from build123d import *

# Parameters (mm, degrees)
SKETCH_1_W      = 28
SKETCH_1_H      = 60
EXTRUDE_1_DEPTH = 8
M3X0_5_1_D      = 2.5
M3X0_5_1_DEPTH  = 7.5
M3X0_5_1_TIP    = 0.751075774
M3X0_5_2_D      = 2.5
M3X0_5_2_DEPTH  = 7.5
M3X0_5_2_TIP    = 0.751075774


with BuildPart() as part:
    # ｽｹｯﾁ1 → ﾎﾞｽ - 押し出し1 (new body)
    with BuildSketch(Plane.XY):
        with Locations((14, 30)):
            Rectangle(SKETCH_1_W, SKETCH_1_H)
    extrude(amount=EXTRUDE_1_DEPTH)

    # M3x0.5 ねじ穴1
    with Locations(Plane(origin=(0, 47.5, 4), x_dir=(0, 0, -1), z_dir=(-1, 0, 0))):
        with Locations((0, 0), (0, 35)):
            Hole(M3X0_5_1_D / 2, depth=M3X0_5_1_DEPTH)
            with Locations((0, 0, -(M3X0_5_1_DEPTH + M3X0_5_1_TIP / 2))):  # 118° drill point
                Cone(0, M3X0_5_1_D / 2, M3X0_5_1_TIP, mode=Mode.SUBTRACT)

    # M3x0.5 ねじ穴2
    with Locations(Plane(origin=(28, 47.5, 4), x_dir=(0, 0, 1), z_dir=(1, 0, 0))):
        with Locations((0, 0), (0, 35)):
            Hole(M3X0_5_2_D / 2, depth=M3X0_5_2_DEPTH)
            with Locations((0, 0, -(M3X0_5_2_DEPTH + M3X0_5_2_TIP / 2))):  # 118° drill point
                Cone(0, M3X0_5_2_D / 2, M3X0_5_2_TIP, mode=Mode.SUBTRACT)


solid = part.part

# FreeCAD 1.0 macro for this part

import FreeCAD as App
import Part
import Sketcher
Q = App.Units.Quantity


def add_polygon(sketch, points):
    """Adds a closed chain of lines whose ends are joined by coincident constraints."""
    first, n = sketch.GeometryCount, len(points)
    for a, b in zip(points, points[1:] + points[:1]):
        sketch.addGeometry(Part.LineSegment(App.Vector(*a, 0), App.Vector(*b, 0)), False)
    for i in range(n):
        sketch.addConstraint(Sketcher.Constraint("Coincident", first + i, 2, first + (i + 1) % n, 1))

doc = App.newDocument("Part")
body = doc.addObject("PartDesign::Body", "Body")

# Sketch on XY plane
sketch1 = body.newObject("Sketcher::SketchObject", "Sketch")
sketch1.AttachmentSupport = (doc.getObject("XY_Plane"), [""])
sketch1.MapMode = "FlatFace"
add_polygon(sketch1, [(0, 60), (0, 0), (28, 0), (28, 60)])  # lines 0-3
sketch1.addConstraint([
    Sketcher.Constraint("Vertical", 0),
    Sketcher.Constraint("Horizontal", 1),
    Sketcher.Constraint("Vertical", 2),
    Sketcher.Constraint("Horizontal", 3),
    Sketcher.Constraint("Coincident", 0, 2, -1, 1),
    Sketcher.Constraint("DistanceX", 1, 1, 1, 2, Q("28 mm")),
    Sketcher.Constraint("DistanceY", 0, 2, 0, 1, Q("60 mm")),
])
pad1 = body.newObject("PartDesign::Pad", "Pad")
pad1.Profile = sketch1
pad1.Length = 8

# Sketch on YZ plane
sketch2 = body.newObject("Sketcher::SketchObject", "Sketch001")
sketch2.AttachmentSupport = (doc.getObject("YZ_Plane"), [""])
sketch2.MapMode = "FlatFace"
sketch2.addGeometry([
    Part.Circle(App.Vector(47.5, 4, 0), App.Vector(0, 0, 1), 1.2),
    Part.Circle(App.Vector(12.5, 4, 0), App.Vector(0, 0, 1), 1.2),
], False)
sketch2.addConstraint([
    Sketcher.Constraint("Equal", 0, 1),
    Sketcher.Constraint("Horizontal", 0, 3, 1, 3),
    Sketcher.Constraint("Diameter", 0, Q("2.5 mm")),
    Sketcher.Constraint("DistanceY", -1, 1, 0, 3, Q("4 mm")),
    Sketcher.Constraint("DistanceX", 1, 3, 0, 3, Q("35 mm")),
    Sketcher.Constraint("DistanceX", -1, 1, 0, 3, Q("47.5 mm")),
])
doc.recompute()
hole = body.newObject("PartDesign::Hole", "Hole")
hole.Profile = sketch2
hole.ThreadType = "None"
hole.Diameter = 2.5
hole.DepthType = "Dimension"
hole.Depth = 7.5
hole.DrillPoint = "Angled"
hole.DrillPointAngle = 118
hole.Reversed = True

# Sketch on YZ plane
sketch3 = body.newObject("Sketcher::SketchObject", "Sketch002")
sketch3.AttachmentSupport = (doc.getObject("YZ_Plane"), [""])
sketch3.MapMode = "FlatFace"
sketch3.AttachmentOffset = App.Placement(App.Vector(0, 0, 28), App.Rotation())
sketch3.addGeometry([
    Part.Circle(App.Vector(47.5, 4, 0), App.Vector(0, 0, 1), 1.2),
    Part.Circle(App.Vector(12.5, 4, 0), App.Vector(0, 0, 1), 1.2),
], False)
sketch3.addConstraint([
    Sketcher.Constraint("Equal", 0, 1),
    Sketcher.Constraint("Horizontal", 0, 3, 1, 3),
    Sketcher.Constraint("Diameter", 0, Q("2.5 mm")),
    Sketcher.Constraint("DistanceY", -1, 1, 0, 3, Q("4 mm")),
    Sketcher.Constraint("DistanceX", 1, 3, 0, 3, Q("35 mm")),
    Sketcher.Constraint("DistanceX", -1, 1, 0, 3, Q("47.5 mm")),
])
doc.recompute()
hole2 = body.newObject("PartDesign::Hole", "Hole001")
hole2.Profile = sketch3
hole2.ThreadType = "None"
hole2.Diameter = 2.5
hole2.DepthType = "Dimension"
hole2.Depth = 7.5
hole2.DrillPoint = "Angled"
hole2.DrillPointAngle = 118

doc.recompute()
